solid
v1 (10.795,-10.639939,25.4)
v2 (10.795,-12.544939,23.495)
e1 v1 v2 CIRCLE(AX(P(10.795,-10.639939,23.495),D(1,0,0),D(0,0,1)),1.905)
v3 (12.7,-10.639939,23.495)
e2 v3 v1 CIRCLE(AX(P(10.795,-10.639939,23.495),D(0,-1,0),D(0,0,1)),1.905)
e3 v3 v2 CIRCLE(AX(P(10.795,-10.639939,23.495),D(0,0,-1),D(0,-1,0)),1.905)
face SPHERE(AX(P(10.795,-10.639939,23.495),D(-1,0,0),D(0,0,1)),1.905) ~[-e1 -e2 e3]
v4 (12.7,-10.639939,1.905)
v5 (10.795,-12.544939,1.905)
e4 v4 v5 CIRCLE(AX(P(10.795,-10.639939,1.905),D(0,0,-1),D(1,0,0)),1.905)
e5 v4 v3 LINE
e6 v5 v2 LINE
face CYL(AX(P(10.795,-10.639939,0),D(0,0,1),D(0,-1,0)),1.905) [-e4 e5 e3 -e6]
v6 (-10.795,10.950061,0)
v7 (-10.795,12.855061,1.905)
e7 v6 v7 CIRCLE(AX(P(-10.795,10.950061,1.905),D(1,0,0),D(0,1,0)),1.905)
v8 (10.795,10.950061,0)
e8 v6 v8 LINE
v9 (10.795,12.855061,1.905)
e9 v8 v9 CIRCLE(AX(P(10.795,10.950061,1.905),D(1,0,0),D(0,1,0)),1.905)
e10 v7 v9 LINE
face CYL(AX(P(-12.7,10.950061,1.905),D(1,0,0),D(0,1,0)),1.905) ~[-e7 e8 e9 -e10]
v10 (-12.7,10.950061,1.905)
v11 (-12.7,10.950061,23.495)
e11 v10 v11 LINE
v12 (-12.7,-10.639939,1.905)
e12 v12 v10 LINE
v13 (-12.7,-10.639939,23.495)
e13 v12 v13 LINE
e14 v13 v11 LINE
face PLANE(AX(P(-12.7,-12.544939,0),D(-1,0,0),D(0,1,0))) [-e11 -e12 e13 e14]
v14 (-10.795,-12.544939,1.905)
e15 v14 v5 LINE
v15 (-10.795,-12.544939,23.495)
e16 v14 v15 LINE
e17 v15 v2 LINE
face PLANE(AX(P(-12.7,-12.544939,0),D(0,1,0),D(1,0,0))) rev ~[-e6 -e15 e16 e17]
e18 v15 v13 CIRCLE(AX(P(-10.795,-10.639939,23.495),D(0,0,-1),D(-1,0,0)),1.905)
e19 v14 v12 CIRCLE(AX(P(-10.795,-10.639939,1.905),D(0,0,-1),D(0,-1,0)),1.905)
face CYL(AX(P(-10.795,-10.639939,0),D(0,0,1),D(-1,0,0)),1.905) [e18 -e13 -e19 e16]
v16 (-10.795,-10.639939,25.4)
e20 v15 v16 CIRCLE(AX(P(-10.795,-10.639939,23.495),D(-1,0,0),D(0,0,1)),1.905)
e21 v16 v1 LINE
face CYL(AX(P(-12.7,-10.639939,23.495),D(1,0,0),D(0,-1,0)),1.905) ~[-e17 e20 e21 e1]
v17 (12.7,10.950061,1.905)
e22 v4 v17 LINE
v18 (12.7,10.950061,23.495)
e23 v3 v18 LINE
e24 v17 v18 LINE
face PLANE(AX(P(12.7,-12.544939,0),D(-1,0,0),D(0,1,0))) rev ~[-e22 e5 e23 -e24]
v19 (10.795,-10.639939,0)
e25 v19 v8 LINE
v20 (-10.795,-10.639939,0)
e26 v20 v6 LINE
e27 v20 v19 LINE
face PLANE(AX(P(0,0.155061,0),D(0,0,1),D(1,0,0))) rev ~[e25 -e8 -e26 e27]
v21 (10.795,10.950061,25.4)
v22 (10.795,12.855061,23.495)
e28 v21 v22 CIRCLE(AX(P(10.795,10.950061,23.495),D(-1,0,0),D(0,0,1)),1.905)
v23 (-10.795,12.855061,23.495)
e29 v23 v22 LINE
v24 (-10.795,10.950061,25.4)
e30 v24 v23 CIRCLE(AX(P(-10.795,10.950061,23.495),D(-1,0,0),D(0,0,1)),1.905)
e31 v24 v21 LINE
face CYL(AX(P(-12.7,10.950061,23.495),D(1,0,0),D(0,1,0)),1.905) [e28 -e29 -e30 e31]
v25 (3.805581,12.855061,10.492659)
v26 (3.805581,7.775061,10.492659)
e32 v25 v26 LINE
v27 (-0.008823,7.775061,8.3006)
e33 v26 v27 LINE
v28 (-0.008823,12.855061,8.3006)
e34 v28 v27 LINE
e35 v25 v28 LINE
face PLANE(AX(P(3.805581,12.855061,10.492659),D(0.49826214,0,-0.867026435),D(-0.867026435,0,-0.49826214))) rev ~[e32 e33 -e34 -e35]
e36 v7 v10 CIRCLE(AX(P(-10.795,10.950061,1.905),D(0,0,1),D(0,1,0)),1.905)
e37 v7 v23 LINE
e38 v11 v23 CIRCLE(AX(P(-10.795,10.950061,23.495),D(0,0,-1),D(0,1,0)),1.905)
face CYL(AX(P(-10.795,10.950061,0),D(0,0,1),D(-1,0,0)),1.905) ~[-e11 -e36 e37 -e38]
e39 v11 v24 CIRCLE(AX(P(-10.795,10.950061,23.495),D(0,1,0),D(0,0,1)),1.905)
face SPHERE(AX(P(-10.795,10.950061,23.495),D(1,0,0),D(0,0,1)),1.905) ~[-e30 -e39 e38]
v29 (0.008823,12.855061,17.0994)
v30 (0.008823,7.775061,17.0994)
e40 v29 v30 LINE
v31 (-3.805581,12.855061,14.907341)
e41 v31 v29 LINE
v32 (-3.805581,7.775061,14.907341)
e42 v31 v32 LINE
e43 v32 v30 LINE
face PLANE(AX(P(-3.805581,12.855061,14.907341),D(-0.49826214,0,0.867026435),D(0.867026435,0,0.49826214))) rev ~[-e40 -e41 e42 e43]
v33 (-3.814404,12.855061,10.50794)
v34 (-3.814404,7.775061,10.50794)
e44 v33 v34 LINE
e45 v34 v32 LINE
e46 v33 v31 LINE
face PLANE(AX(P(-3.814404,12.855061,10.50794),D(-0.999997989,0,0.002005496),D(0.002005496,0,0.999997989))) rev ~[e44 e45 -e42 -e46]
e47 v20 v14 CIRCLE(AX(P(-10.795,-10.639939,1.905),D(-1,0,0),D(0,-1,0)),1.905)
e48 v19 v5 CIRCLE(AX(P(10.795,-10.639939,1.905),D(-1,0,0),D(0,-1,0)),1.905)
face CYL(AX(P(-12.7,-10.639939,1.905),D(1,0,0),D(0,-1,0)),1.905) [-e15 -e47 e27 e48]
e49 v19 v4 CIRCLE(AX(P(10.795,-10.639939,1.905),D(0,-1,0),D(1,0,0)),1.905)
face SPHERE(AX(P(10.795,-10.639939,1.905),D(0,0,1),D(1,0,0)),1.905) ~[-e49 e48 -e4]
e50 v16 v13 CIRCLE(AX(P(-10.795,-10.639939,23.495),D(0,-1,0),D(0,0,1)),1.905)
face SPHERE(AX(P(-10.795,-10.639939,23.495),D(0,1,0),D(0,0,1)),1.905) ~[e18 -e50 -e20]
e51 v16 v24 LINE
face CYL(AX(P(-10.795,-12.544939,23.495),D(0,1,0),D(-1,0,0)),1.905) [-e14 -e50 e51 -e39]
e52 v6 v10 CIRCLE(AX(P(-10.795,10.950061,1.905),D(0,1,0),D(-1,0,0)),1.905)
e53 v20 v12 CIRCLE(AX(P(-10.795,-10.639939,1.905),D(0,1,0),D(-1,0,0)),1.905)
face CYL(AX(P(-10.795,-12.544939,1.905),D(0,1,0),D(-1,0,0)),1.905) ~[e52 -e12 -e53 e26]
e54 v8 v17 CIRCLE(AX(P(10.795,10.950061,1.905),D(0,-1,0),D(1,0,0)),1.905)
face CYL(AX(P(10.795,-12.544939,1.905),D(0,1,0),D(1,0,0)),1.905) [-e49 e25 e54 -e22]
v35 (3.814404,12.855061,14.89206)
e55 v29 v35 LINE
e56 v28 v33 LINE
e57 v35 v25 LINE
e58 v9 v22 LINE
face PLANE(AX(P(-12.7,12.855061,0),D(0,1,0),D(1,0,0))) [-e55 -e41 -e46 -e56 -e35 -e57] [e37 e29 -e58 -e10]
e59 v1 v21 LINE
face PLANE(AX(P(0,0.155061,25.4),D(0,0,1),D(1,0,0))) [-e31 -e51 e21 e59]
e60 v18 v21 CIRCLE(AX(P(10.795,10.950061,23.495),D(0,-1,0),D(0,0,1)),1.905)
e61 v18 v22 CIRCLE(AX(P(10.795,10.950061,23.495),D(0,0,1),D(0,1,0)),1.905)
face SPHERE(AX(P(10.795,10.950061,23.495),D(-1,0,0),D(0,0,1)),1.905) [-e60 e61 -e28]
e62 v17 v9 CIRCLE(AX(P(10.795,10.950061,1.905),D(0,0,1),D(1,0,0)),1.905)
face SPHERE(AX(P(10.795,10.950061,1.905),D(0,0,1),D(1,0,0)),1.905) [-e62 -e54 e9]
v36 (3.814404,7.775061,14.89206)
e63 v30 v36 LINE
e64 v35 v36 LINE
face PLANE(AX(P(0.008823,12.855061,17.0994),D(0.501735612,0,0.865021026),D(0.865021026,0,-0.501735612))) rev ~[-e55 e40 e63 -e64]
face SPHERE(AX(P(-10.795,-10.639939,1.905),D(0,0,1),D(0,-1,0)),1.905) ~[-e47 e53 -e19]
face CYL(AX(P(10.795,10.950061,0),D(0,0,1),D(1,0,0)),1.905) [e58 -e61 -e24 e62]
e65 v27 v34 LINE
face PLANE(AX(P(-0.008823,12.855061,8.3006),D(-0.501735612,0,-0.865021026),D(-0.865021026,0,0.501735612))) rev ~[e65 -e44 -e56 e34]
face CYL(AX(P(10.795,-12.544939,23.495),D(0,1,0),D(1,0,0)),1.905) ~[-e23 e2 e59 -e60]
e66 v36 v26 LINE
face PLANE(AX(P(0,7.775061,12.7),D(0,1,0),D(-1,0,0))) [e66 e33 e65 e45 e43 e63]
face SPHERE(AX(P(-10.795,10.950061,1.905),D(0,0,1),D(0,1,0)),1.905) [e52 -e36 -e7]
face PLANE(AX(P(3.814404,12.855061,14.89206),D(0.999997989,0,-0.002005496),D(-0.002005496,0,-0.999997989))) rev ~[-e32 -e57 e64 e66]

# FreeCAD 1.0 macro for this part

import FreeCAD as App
import Part
import Sketcher
Q = App.Units.Quantity

doc = App.newDocument("Part")
body = doc.addObject("PartDesign::Body", "Body")

# Sketch on XY plane
sketch1 = doc.addObject("Sketcher::SketchObject", "Sketch")
body.addObject(sketch1)
sketch1.AttachmentSupport = (doc.XY_Plane, [""])
sketch1.MapMode = "FlatFace"
sketch1.addGeometry([
    Part.LineSegment(App.Vector(-13, 13, 0), App.Vector(-13, -13, 0)),
    Part.LineSegment(App.Vector(-13, -13, 0), App.Vector(13, -13, 0)),
    Part.LineSegment(App.Vector(13, -13, 0), App.Vector(13, 13, 0)),
    Part.LineSegment(App.Vector(13, 13, 0), App.Vector(-13, 13, 0)),
], False)
sketch1.addConstraint([
    Sketcher.Constraint("Coincident", 0, 2, 1, 1),
    Sketcher.Constraint("Coincident", 1, 2, 2, 1),
    Sketcher.Constraint("Coincident", 2, 2, 3, 1),
    Sketcher.Constraint("Coincident", 3, 2, 0, 1),
    Sketcher.Constraint("Vertical", 0),
    Sketcher.Constraint("Horizontal", 1),
    Sketcher.Constraint("Vertical", 2),
    Sketcher.Constraint("Horizontal", 3),
    Sketcher.Constraint("Equal", 3, 0),
    Sketcher.Constraint("DistanceX", 1, 1, 1, 2, Q("1 in")),
    Sketcher.Constraint("DistanceX", 0, 2, -1, 1, Q("0.5 in")),
    Sketcher.Constraint("DistanceY", 0, 2, -1, 1, 12.544939),
])
pad1 = doc.addObject("PartDesign::Pad", "Pad")
body.addObject(pad1)
pad1.Profile = sketch1
pad1.Length = Q("1 in")
doc.recompute()

fillet = doc.addObject("PartDesign::Fillet", "Fillet")
body.addObject(fillet)
fillet.Base = (pad1, ["Edge1"])
fillet.UseAllEdges = True
fillet.Radius = Q("0.075 in")

# Sketch on XZ plane
sketch2 = doc.addObject("Sketcher::SketchObject", "Sketch001")
body.addObject(sketch2)
sketch2.AttachmentSupport = (doc.XZ_Plane, [""])
sketch2.MapMode = "FlatFace"
sketch2.AttachmentOffset = App.Placement(App.Vector(0, 0, -12.855061), App.Rotation())
sketch2.addGeometry([
    Part.LineSegment(App.Vector(0, 8.3, 0), App.Vector(-3.8, 10.5, 0)),  # 0
    Part.LineSegment(App.Vector(-3.8, 10.5, 0), App.Vector(-3.8, 14.9, 0)),  # 1
    Part.LineSegment(App.Vector(-3.8, 14.9, 0), App.Vector(0, 17.1, 0)),  # 2
    Part.LineSegment(App.Vector(0, 17.1, 0), App.Vector(3.8, 14.9, 0)),  # 3
    Part.LineSegment(App.Vector(3.8, 14.9, 0), App.Vector(3.8, 10.5, 0)),  # 4
    Part.LineSegment(App.Vector(3.8, 10.5, 0), App.Vector(0, 8.3, 0)),  # 5
], False)
sketch2.addConstraint([
    Sketcher.Constraint("Coincident", 0, 2, 1, 1),
    Sketcher.Constraint("Coincident", 1, 2, 2, 1),
    Sketcher.Constraint("Coincident", 2, 2, 3, 1),
    Sketcher.Constraint("Coincident", 3, 2, 4, 1),
    Sketcher.Constraint("Coincident", 4, 2, 5, 1),
    Sketcher.Constraint("Coincident", 5, 2, 0, 1),
    Sketcher.Constraint("Parallel", 0, 3),
    Sketcher.Constraint("Parallel", 1, 4),
    Sketcher.Constraint("Parallel", 2, 5),
    Sketcher.Constraint("Equal", 0, 1),
    Sketcher.Constraint("Equal", 1, 2),
    Sketcher.Constraint("Equal", 2, 3),
    Sketcher.Constraint("DistanceY", -1, 1, 2, 2, 17.0994),
    Sketcher.Constraint("DistanceY", -1, 1, 5, 2, 8.3006),
    Sketcher.Constraint("DistanceY", 0, 2, 1, 2, 4.399401),
    Sketcher.Constraint("DistanceY", -1, 1, 0, 2, 10.50794),
    Sketcher.Constraint("DistanceX", 1, 2, -1, 1, 3.805581),
    Sketcher.Constraint("DistanceX", -1, 1, 4, 2, 3.805581),
])
pocket1 = doc.addObject("PartDesign::Pocket", "Pocket")
body.addObject(pocket1)
pocket1.Profile = sketch2
pocket1.Length = Q("0.2 in")
pocket1.Reversed = True

doc.recompute()
